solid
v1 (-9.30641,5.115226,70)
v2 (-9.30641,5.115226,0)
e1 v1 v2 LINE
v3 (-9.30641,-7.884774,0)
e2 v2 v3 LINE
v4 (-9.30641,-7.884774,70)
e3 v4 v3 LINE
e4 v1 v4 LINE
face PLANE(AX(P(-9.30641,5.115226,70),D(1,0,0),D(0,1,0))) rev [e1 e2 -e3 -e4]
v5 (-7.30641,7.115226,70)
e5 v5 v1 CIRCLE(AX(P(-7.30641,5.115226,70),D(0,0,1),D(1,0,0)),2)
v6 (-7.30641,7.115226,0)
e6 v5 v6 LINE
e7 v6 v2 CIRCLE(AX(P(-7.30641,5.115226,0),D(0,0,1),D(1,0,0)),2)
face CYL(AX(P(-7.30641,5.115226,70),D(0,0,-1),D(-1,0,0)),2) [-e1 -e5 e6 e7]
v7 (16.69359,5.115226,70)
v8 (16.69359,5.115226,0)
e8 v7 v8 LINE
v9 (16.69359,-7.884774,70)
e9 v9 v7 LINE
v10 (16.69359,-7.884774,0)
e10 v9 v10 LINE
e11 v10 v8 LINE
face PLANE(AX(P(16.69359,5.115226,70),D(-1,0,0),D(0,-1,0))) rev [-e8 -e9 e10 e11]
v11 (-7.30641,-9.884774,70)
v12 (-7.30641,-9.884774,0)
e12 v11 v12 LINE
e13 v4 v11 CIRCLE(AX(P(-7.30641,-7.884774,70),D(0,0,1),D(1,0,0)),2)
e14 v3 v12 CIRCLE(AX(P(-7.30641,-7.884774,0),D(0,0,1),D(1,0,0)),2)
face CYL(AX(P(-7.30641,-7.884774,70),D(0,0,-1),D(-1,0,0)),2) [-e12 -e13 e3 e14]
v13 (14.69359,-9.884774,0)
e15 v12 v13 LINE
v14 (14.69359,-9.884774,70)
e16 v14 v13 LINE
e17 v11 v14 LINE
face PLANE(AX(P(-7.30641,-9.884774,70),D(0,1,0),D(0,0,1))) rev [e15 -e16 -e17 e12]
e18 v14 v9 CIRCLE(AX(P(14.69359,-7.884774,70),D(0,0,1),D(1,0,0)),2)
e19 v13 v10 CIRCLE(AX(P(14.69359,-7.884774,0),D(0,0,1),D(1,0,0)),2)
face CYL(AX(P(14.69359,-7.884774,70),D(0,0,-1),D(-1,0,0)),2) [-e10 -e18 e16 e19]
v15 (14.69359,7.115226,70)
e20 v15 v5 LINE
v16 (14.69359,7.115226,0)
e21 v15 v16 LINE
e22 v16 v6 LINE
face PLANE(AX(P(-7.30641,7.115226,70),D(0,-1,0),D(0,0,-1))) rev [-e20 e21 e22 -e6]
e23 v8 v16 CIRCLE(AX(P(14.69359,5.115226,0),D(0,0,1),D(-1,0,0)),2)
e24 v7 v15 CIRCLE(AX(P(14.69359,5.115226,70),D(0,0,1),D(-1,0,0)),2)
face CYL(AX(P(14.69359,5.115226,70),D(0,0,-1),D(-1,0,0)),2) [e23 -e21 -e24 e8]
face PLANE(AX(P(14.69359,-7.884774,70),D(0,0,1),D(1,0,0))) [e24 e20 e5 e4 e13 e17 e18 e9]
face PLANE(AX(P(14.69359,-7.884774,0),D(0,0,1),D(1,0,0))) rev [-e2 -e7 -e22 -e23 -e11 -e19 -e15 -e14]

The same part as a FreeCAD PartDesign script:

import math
import FreeCAD as App
import Part
import Sketcher
from FreeCAD import Vector

doc = App.newDocument("Part")
body = doc.addObject("PartDesign::Body", "Body")

# Sketch on XY plane
sketch1 = body.newObject("Sketcher::SketchObject", "Sketch")
sketch1.AttachmentSupport = (doc.getObject("XY_Plane"), [""])
sketch1.MapMode = "FlatFace"
sketch1.addGeometry(Part.LineSegment(Vector(14.7, 7.1, 0), Vector(-7.3, 7.1, 0)), False)
sketch1.addGeometry(Part.ArcOfCircle(Part.Circle(Vector(-7.3, 5.1, 0), Vector(0, 0, 1), 2), math.radians(90), math.radians(180)), False)
sketch1.addGeometry(Part.LineSegment(Vector(-9.3, 5.1, 0), Vector(-9.3, -7.9, 0)), False)
sketch1.addGeometry(Part.ArcOfCircle(Part.Circle(Vector(-7.3, -7.9, 0), Vector(0, 0, 1), 2), math.radians(-180), math.radians(-90)), False)
sketch1.addGeometry(Part.LineSegment(Vector(-7.3, -9.9, 0), Vector(14.7, -9.9, 0)), False)
sketch1.addGeometry(Part.ArcOfCircle(Part.Circle(Vector(14.7, -7.9, 0), Vector(0, 0, 1), 2), math.radians(-90), math.radians(0)), False)
sketch1.addGeometry(Part.LineSegment(Vector(16.7, -7.9, 0), Vector(16.7, 5.1, 0)), False)
sketch1.addGeometry(Part.ArcOfCircle(Part.Circle(Vector(14.7, 5.1, 0), Vector(0, 0, 1), 2), math.radians(0), math.radians(90)), False)
sketch1.addConstraint(Sketcher.Constraint("Tangent", 0, 2, 1, 1))
sketch1.addConstraint(Sketcher.Constraint("Tangent", 1, 2, 2, 1))
sketch1.addConstraint(Sketcher.Constraint("Tangent", 2, 2, 3, 1))
sketch1.addConstraint(Sketcher.Constraint("Tangent", 3, 2, 4, 1))
sketch1.addConstraint(Sketcher.Constraint("Tangent", 4, 2, 5, 1))
sketch1.addConstraint(Sketcher.Constraint("Tangent", 5, 2, 6, 1))
sketch1.addConstraint(Sketcher.Constraint("Tangent", 6, 2, 7, 1))
sketch1.addConstraint(Sketcher.Constraint("Tangent", 7, 2, 0, 1))
sketch1.addConstraint(Sketcher.Constraint("Horizontal", 0))
sketch1.addConstraint(Sketcher.Constraint("Vertical", 2))
sketch1.addConstraint(Sketcher.Constraint("Horizontal", 4))
sketch1.addConstraint(Sketcher.Constraint("Vertical", 6))
sketch1.addConstraint(Sketcher.Constraint("Equal", 1, 3))
sketch1.addConstraint(Sketcher.Constraint("Equal", 3, 5))
sketch1.addConstraint(Sketcher.Constraint("Equal", 5, 7))
sketch1.addConstraint(Sketcher.Constraint("Radius", 1, 2.0))
sketch1.addConstraint(Sketcher.Constraint("DistanceX", 0, 2, 0, 1, 22.0))
sketch1.addConstraint(Sketcher.Constraint("DistanceY", 2, 2, 2, 1, 13.0))
sketch1.addConstraint(Sketcher.Constraint("DistanceX", 1, 3, -1, 1, 7.30641))
sketch1.addConstraint(Sketcher.Constraint("DistanceY", -1, 1, 1, 3, 5.115226))
pad1 = body.newObject("PartDesign::Pad", "Pad")
pad1.Profile = sketch1
pad1.Length = 70

doc.recompute()
